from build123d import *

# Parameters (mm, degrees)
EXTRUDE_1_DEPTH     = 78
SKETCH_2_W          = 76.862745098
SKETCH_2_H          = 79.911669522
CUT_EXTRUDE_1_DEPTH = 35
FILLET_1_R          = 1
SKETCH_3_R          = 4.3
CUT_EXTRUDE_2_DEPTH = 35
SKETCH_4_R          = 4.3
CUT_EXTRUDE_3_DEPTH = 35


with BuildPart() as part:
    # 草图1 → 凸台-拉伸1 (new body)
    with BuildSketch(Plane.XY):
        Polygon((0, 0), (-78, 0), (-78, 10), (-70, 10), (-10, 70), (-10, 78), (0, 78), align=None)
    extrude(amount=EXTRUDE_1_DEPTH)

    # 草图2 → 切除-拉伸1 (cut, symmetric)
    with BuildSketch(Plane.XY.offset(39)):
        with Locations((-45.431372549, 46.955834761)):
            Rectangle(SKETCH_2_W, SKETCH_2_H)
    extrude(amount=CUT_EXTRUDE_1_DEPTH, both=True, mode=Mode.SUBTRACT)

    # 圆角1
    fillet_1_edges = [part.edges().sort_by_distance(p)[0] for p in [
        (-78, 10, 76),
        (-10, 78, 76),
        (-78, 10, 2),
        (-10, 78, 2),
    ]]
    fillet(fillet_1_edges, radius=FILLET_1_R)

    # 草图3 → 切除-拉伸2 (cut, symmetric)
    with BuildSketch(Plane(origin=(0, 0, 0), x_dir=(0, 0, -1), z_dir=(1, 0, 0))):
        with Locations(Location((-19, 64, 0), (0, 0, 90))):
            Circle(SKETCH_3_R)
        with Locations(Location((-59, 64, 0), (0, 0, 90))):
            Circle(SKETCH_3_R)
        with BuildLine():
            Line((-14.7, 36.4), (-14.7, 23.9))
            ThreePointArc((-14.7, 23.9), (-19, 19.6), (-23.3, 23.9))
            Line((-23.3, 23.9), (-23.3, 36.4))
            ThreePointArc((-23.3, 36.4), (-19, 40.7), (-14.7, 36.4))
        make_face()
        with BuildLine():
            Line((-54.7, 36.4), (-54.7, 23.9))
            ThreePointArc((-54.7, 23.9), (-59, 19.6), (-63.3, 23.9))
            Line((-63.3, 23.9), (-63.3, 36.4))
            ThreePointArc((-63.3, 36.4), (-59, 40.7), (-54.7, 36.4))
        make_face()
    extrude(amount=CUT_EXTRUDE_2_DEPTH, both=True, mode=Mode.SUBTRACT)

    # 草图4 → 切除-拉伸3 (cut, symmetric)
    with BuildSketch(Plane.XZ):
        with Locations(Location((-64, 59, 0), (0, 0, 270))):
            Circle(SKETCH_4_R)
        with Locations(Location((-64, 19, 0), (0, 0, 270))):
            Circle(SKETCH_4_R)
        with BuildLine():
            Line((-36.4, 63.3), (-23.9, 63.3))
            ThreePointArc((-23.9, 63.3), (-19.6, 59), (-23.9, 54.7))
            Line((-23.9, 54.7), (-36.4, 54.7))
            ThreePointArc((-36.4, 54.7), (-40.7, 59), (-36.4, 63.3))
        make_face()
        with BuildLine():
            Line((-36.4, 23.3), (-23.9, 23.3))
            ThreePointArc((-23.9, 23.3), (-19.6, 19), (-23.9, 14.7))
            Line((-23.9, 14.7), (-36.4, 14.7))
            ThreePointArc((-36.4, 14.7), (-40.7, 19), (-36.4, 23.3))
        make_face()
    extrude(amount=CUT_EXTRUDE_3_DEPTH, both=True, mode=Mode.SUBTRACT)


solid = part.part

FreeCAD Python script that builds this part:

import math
import FreeCAD as App
import Part
import Sketcher


def edges_at(feature, points):
    """Names of the edges that pass closest to the given points."""
    edges = feature.Shape.Edges
    near = lambda p: min(range(len(edges)), key=lambda i: edges[i].distToShape(Part.Vertex(*p))[0])
    return sorted({f"Edge{near(p) + 1}" for p in points})


def add_polygon(sketch, points):
    """Adds a closed chain of lines whose ends are joined by coincident constraints."""
    first, n = sketch.GeometryCount, len(points)
    for a, b in zip(points, points[1:] + points[:1]):
        sketch.addGeometry(Part.LineSegment(App.Vector(*a, 0), App.Vector(*b, 0)), False)
    for i in range(n):
        sketch.addConstraint(Sketcher.Constraint("Coincident", first + i, 2, first + (i + 1) % n, 1))

doc = App.newDocument("Part")
body = doc.addObject("PartDesign::Body", "Body")

# Sketch on XY plane
sketch1 = body.newObject("Sketcher::SketchObject", "Sketch")
sketch1.AttachmentSupport = (doc.getObject("XY_Plane"), [""])
sketch1.MapMode = "FlatFace"
add_polygon(sketch1, [(-78, 0), (0, 0), (0, 78), (-10, 78), (-10, 70), (-70, 10), (-78, 10)])  # lines 0-6
sketch1.addConstraint([
    Sketcher.Constraint("Horizontal", 0),
    Sketcher.Constraint("Vertical", 1),
    Sketcher.Constraint("Horizontal", 2),
    Sketcher.Constraint("Vertical", 3),
    Sketcher.Constraint("Horizontal", 5),
    Sketcher.Constraint("Vertical", 6),
    Sketcher.Constraint("Coincident", 0, 2, -1, 1),
    Sketcher.Constraint("Equal", 0, 1),
    Sketcher.Constraint("Equal", 5, 3),
    Sketcher.Constraint("Equal", 2, 6),
    Sketcher.Constraint("DistanceX", 0, 1, 0, 2, 78.0),
    Sketcher.Constraint("DistanceX", 2, 2, 2, 1, 10.0),
    Sketcher.Constraint("DistanceX", 5, 2, 5, 1, 8.0),
])
pad1 = body.newObject("PartDesign::Pad", "Pad")
pad1.Profile = sketch1
pad1.Length = 78

# Sketch on XY plane
sketch2 = body.newObject("Sketcher::SketchObject", "Sketch001")
sketch2.AttachmentSupport = (doc.getObject("XY_Plane"), [""])
sketch2.MapMode = "FlatFace"
sketch2.AttachmentOffset = App.Placement(App.Vector(0, 0, 39), App.Rotation())
add_polygon(sketch2, [(-83.862745, 86.91167), (-83.862745, 7), (-7, 7), (-7, 86.91167)])  # lines 0-3
sketch2.addConstraint([
    Sketcher.Constraint("Vertical", 0),
    Sketcher.Constraint("Horizontal", 1),
    Sketcher.Constraint("Vertical", 2),
    Sketcher.Constraint("Horizontal", 3),
    Sketcher.Constraint("DistanceY", -1, 1, 0, 2, 7.0),
    Sketcher.Constraint("DistanceX", 1, 2, -1, 1, 7.0),
    Sketcher.Constraint("DistanceY", 0, 2, 0, 1, 79.91167),
    Sketcher.Constraint("DistanceX", 1, 1, 1, 2, 76.862745),
])
pocket1 = body.newObject("PartDesign::Pocket", "Pocket")
pocket1.Profile = sketch2
pocket1.Length = 70
pocket1.Midplane = True
doc.recompute()

fillet = body.newObject("PartDesign::Fillet", "Fillet")
fillet.Base = (pocket1, edges_at(pocket1, [
    (-78, 10, 76),
    (-10, 78, 76),
    (-78, 10, 2),
    (-10, 78, 2),
]))
fillet.Radius = 1

# Sketch on YZ plane
sketch3 = body.newObject("Sketcher::SketchObject", "Sketch002")
sketch3.AttachmentSupport = (doc.getObject("YZ_Plane"), [""])
sketch3.MapMode = "FlatFace"
sketch3.addGeometry([
    Part.Circle(App.Vector(64, 19, 0), App.Vector(0, 0, 1), 4.3),  # 0
    Part.Circle(App.Vector(64, 59, 0), App.Vector(0, 0, 1), 4.3),  # 1
    Part.LineSegment(App.Vector(23.9, 14.7, 0), App.Vector(36.4, 14.7, 0)),  # 2
    Part.ArcOfCircle(Part.Circle(App.Vector(36.4, 19, 0), App.Vector(0, 0, 1), 4.3), math.radians(-90), math.radians(90)),  # 3
    Part.LineSegment(App.Vector(36.4, 23.3, 0), App.Vector(23.9, 23.3, 0)),  # 4
    Part.ArcOfCircle(Part.Circle(App.Vector(23.9, 19, 0), App.Vector(0, 0, 1), 4.3), math.radians(90), math.radians(270)),  # 5
    Part.LineSegment(App.Vector(23.9, 54.7, 0), App.Vector(36.4, 54.7, 0)),  # 6
    Part.ArcOfCircle(Part.Circle(App.Vector(36.4, 59, 0), App.Vector(0, 0, 1), 4.3), math.radians(-90), math.radians(90)),  # 7
    Part.LineSegment(App.Vector(36.4, 63.3, 0), App.Vector(23.9, 63.3, 0)),  # 8
    Part.ArcOfCircle(Part.Circle(App.Vector(23.9, 59, 0), App.Vector(0, 0, 1), 4.3), math.radians(90), math.radians(270)),  # 9
], False)
sketch3.addConstraint([
    Sketcher.Constraint("Tangent", 2, 2, 3, 1),
    Sketcher.Constraint("Tangent", 3, 2, 4, 1),
    Sketcher.Constraint("Tangent", 4, 2, 5, 1),
    Sketcher.Constraint("Tangent", 5, 2, 2, 1),
    Sketcher.Constraint("Tangent", 6, 2, 7, 1),
    Sketcher.Constraint("Tangent", 7, 2, 8, 1),
    Sketcher.Constraint("Tangent", 8, 2, 9, 1),
    Sketcher.Constraint("Tangent", 9, 2, 6, 1),
    Sketcher.Constraint("Horizontal", 2),
    Sketcher.Constraint("Horizontal", 4),
    Sketcher.Constraint("Horizontal", 6),
    Sketcher.Constraint("Horizontal", 8),
    Sketcher.Constraint("Equal", 0, 1),
    Sketcher.Constraint("Equal", 1, 3),
    Sketcher.Constraint("Equal", 5, 7),
    Sketcher.Constraint("Horizontal", 0, 3, 3, 3),
    Sketcher.Constraint("Horizontal", 1, 3, 7, 3),
    Sketcher.Constraint("Vertical", 0, 3, 1, 3),
    Sketcher.Constraint("Vertical", 3, 3, 7, 3),
    Sketcher.Constraint("Vertical", 5, 3, 9, 3),
    Sketcher.Constraint("Diameter", 0, 8.6),
    Sketcher.Constraint("DistanceX", 2, 1, 2, 2, 12.5),
    Sketcher.Constraint("DistanceX", -1, 1, 0, 3, 64.0),
    Sketcher.Constraint("DistanceY", -1, 1, 0, 3, 19.0),
    Sketcher.Constraint("DistanceY", -1, 1, 1, 3, 59.0),
    Sketcher.Constraint("DistanceX", -1, 1, 3, 3, 36.4),
])
pocket2 = body.newObject("PartDesign::Pocket", "Pocket001")
pocket2.Profile = sketch3
pocket2.Length = 70
pocket2.Midplane = True

# Sketch on XZ plane
sketch4 = body.newObject("Sketcher::SketchObject", "Sketch003")
sketch4.AttachmentSupport = (doc.getObject("XZ_Plane"), [""])
sketch4.MapMode = "FlatFace"
sketch4.addGeometry([
    Part.Circle(App.Vector(-64, 59, 0), App.Vector(0, 0, 1), 4.3),  # 0
    Part.Circle(App.Vector(-64, 19, 0), App.Vector(0, 0, 1), 4.3),  # 1
    Part.LineSegment(App.Vector(-23.9, 63.3, 0), App.Vector(-36.4, 63.3, 0)),  # 2
    Part.ArcOfCircle(Part.Circle(App.Vector(-36.4, 59, 0), App.Vector(0, 0, 1), 4.3), math.radians(90), math.radians(270)),  # 3
    Part.LineSegment(App.Vector(-36.4, 54.7, 0), App.Vector(-23.9, 54.7, 0)),  # 4
    Part.ArcOfCircle(Part.Circle(App.Vector(-23.9, 59, 0), App.Vector(0, 0, 1), 4.3), math.radians(-90), math.radians(90)),  # 5
    Part.LineSegment(App.Vector(-23.9, 23.3, 0), App.Vector(-36.4, 23.3, 0)),  # 6
    Part.ArcOfCircle(Part.Circle(App.Vector(-36.4, 19, 0), App.Vector(0, 0, 1), 4.3), math.radians(90), math.radians(270)),  # 7
    Part.LineSegment(App.Vector(-36.4, 14.7, 0), App.Vector(-23.9, 14.7, 0)),  # 8
    Part.ArcOfCircle(Part.Circle(App.Vector(-23.9, 19, 0), App.Vector(0, 0, 1), 4.3), math.radians(-90), math.radians(90)),  # 9
], False)
sketch4.addConstraint([
    Sketcher.Constraint("Tangent", 2, 2, 3, 1),
    Sketcher.Constraint("Tangent", 3, 2, 4, 1),
    Sketcher.Constraint("Tangent", 4, 2, 5, 1),
    Sketcher.Constraint("Tangent", 5, 2, 2, 1),
    Sketcher.Constraint("Tangent", 6, 2, 7, 1),
    Sketcher.Constraint("Tangent", 7, 2, 8, 1),
    Sketcher.Constraint("Tangent", 8, 2, 9, 1),
    Sketcher.Constraint("Tangent", 9, 2, 6, 1),
    Sketcher.Constraint("Horizontal", 2),
    Sketcher.Constraint("Horizontal", 4),
    Sketcher.Constraint("Horizontal", 6),
    Sketcher.Constraint("Horizontal", 8),
    Sketcher.Constraint("Equal", 0, 1),
    Sketcher.Constraint("Equal", 1, 3),
    Sketcher.Constraint("Equal", 5, 7),
    Sketcher.Constraint("Horizontal", 0, 3, 3, 3),
    Sketcher.Constraint("Horizontal", 1, 3, 7, 3),
    Sketcher.Constraint("Vertical", 0, 3, 1, 3),
    Sketcher.Constraint("Vertical", 3, 3, 7, 3),
    Sketcher.Constraint("Vertical", 5, 3, 9, 3),
    Sketcher.Constraint("Diameter", 0, 8.6),
    Sketcher.Constraint("DistanceX", 2, 2, 2, 1, 12.5),
    Sketcher.Constraint("DistanceX", 0, 3, -1, 1, 64.0),
    Sketcher.Constraint("DistanceY", -1, 1, 0, 3, 59.0),
    Sketcher.Constraint("DistanceY", -1, 1, 1, 3, 19.0),
    Sketcher.Constraint("DistanceX", 3, 3, -1, 1, 36.4),
])
pocket3 = body.newObject("PartDesign::Pocket", "Pocket002")
pocket3.Profile = sketch4
pocket3.Length = 70
pocket3.Midplane = True

doc.recompute()
